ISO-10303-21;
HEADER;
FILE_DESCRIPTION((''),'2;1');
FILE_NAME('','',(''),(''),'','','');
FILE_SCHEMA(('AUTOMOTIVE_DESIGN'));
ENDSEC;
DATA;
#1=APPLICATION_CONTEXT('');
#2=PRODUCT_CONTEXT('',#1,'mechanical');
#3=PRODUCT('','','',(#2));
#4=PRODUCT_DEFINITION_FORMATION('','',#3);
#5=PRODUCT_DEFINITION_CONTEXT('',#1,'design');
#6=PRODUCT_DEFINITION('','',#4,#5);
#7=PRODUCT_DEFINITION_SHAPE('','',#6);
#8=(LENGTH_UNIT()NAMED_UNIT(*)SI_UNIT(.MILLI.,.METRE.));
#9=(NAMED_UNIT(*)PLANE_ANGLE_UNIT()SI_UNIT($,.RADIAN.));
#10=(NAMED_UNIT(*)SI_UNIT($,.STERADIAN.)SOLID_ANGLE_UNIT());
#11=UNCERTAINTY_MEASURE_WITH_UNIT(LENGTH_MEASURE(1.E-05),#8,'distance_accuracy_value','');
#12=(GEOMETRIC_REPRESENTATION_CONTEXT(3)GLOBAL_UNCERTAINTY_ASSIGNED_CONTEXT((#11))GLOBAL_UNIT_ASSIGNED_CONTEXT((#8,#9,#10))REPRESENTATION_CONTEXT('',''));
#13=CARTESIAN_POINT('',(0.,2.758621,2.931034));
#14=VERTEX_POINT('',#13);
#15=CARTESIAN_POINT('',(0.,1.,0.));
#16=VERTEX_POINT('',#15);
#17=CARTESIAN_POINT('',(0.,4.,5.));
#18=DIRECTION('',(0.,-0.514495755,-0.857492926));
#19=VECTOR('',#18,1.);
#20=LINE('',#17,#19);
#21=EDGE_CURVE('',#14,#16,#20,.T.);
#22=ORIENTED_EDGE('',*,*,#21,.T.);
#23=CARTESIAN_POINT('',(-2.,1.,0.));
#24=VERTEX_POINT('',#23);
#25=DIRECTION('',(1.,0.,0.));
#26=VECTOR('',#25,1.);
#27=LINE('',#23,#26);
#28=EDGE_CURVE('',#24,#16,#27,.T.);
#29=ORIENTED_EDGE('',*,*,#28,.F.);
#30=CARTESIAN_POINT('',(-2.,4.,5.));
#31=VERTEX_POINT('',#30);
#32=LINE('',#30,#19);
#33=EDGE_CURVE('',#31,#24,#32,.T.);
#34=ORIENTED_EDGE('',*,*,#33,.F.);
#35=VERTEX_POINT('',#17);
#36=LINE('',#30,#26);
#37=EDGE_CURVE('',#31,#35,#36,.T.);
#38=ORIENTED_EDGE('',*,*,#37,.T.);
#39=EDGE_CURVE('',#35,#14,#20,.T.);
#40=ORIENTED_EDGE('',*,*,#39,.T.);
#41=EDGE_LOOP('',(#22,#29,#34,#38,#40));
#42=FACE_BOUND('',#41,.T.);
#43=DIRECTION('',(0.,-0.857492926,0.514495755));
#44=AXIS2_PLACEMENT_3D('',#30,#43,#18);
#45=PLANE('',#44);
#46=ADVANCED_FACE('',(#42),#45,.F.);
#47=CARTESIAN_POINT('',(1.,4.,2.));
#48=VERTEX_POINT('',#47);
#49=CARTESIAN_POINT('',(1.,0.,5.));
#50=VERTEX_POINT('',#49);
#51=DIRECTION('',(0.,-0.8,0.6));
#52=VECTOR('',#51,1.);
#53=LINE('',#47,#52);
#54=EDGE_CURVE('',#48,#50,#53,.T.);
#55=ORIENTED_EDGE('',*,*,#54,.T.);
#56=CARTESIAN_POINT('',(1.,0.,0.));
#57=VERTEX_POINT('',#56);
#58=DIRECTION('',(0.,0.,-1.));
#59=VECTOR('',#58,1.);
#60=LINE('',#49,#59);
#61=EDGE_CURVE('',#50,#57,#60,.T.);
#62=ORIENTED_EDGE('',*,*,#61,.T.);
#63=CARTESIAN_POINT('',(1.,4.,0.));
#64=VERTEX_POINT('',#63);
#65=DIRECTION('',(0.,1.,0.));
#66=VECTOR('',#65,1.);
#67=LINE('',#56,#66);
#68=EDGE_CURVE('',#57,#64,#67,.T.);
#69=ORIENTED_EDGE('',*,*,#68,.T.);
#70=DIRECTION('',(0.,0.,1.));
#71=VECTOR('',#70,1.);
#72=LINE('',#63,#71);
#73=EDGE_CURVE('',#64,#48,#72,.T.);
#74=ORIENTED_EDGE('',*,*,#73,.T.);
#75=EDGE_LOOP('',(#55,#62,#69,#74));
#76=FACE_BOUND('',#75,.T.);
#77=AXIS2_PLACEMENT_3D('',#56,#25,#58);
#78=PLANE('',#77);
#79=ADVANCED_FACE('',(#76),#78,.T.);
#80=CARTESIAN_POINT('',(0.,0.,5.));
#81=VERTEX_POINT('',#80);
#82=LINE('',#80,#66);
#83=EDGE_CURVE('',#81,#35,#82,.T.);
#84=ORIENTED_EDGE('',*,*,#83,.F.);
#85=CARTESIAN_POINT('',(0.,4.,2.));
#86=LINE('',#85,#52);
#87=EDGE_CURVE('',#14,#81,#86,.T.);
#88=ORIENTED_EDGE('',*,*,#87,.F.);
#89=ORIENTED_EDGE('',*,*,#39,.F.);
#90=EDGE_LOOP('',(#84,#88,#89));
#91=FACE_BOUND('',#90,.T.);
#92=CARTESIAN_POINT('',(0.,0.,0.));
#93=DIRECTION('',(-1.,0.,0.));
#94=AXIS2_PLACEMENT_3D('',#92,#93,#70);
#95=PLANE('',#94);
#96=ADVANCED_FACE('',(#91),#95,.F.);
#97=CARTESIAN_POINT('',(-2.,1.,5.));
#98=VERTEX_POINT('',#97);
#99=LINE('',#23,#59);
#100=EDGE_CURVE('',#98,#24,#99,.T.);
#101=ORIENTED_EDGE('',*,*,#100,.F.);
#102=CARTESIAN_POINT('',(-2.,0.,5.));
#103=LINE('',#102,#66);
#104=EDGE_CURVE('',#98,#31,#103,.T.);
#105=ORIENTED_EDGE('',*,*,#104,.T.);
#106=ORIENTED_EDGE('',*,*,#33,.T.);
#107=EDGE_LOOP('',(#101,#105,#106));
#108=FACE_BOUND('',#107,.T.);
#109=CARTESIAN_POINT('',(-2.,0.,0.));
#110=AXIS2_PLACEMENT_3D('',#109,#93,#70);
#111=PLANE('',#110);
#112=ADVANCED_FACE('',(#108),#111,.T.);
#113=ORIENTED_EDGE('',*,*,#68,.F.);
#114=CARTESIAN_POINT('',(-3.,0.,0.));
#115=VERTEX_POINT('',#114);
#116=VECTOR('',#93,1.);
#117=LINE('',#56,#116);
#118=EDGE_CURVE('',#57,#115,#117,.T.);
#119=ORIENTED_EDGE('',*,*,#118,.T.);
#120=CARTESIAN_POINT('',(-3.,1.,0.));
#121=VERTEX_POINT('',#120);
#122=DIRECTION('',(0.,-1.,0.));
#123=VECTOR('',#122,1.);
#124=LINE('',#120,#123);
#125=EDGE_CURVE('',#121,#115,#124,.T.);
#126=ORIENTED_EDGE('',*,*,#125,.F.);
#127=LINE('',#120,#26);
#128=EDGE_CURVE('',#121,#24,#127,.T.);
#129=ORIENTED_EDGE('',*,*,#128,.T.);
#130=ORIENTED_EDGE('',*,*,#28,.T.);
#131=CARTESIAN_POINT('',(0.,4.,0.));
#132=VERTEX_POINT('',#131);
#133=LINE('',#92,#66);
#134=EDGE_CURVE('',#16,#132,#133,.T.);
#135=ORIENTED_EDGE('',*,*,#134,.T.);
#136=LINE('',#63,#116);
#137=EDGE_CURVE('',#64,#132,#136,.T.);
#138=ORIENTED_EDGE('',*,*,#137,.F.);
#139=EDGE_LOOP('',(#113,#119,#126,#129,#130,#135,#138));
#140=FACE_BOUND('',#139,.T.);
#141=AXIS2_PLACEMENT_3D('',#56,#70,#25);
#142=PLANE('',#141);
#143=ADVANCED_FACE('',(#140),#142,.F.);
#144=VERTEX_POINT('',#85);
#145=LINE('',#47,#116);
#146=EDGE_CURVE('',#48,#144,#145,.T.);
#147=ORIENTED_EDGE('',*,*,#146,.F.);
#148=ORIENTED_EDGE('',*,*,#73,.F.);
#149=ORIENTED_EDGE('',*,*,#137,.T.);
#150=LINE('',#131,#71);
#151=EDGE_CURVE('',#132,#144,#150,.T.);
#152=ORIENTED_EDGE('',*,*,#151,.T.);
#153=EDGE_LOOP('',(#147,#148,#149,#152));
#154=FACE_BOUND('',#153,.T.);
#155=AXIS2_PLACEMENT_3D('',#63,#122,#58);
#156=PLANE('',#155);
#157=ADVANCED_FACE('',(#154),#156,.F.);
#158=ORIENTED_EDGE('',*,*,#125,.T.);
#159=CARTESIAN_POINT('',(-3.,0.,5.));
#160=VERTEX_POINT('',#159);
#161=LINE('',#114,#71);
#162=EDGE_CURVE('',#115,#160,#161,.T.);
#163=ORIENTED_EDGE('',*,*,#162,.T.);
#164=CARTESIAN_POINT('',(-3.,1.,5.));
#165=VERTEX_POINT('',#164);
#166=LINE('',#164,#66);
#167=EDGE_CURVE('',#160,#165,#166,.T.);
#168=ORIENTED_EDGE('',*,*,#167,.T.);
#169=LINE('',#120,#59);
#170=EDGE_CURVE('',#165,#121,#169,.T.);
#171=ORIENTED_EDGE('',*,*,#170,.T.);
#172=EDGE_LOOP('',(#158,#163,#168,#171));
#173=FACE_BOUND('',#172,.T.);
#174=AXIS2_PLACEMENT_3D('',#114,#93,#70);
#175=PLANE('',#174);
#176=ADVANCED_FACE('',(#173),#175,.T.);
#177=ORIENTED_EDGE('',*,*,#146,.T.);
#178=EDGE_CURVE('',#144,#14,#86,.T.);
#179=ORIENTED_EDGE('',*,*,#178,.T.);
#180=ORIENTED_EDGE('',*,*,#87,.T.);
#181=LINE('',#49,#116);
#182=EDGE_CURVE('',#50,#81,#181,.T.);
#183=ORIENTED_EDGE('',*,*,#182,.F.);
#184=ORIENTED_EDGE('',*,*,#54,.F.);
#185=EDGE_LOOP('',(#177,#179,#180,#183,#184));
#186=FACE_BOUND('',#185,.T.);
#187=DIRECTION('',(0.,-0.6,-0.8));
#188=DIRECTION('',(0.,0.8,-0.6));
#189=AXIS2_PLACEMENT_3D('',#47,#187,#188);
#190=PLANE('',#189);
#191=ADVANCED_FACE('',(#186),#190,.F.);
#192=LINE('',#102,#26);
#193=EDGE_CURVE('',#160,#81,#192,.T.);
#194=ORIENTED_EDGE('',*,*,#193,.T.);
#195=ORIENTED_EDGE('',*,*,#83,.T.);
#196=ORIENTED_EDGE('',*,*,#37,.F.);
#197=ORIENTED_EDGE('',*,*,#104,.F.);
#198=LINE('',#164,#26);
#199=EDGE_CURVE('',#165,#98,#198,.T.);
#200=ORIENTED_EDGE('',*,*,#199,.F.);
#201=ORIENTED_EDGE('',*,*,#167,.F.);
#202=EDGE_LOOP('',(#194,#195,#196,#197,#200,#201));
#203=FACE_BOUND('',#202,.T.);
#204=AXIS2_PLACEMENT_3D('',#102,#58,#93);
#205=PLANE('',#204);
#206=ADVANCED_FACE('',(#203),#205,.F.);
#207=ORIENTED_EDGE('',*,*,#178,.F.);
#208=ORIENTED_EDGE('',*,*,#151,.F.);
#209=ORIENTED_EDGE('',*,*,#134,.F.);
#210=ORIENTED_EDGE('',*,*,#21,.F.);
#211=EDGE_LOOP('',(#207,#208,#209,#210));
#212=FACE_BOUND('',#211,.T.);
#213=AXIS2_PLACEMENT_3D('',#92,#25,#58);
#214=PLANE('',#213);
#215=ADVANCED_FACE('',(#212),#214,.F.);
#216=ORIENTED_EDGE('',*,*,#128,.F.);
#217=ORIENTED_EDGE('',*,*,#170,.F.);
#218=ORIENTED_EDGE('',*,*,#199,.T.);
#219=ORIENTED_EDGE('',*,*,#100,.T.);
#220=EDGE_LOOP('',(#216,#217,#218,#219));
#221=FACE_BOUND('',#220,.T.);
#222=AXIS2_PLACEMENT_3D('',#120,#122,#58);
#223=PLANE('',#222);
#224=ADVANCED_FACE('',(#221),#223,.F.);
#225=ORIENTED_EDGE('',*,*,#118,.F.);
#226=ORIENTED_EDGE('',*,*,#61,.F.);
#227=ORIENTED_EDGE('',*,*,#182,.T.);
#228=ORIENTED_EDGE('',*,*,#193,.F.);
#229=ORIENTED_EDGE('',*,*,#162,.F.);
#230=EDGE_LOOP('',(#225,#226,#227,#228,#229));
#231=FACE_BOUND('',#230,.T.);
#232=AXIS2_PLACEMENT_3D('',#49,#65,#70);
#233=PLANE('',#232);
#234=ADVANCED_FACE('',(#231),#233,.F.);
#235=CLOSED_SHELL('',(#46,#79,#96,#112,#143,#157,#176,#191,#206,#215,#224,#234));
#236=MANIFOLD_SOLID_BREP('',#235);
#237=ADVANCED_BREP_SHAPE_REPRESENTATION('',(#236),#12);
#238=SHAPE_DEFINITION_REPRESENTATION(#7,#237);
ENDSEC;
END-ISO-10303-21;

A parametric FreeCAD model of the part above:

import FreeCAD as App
import Part
import Sketcher
Q = App.Units.Quantity

doc = App.newDocument("Part")
params = doc.addObject("Spreadsheet::Sheet", "Params")
for row, (alias, value) in enumerate([
    ("sketch1_width", "4 mm"),
    ("sketch1_height", "2 mm"),
    ("sketch1_height2", "5 mm"),
    ("pad1_length", "1 mm"),
    ("sketch2_width", "4 mm"),
    ("sketch2_width2", "1 mm"),
    ("sketch2_height", "5 mm"),
    ("pad2_length", "2 mm"),
    ("sketch3_width", "1 mm"),
    ("sketch3_height", "5 mm"),
    ("pad3_length", "1 mm"),
], start=1):
    params.set(f"A{row}", alias)
    params.set(f"B{row}", "=" + value)
    params.setAlias(f"B{row}", alias)

body = doc.addObject("PartDesign::Body", "Body")

# Sketch on YZ plane
sketch1 = body.newObject("Sketcher::SketchObject", "Sketch")
sketch1.AttachmentSupport = (doc.getObject("YZ_Plane"), [""])
sketch1.MapMode = "FlatFace"
sketch1.addGeometry(Part.LineSegment(App.Vector(0, 0, 0), App.Vector(4, 0, 0)), False)
sketch1.addGeometry(Part.LineSegment(App.Vector(4, 0, 0), App.Vector(4, 2, 0)), False)
sketch1.addGeometry(Part.LineSegment(App.Vector(4, 2, 0), App.Vector(0, 5, 0)), False)
sketch1.addGeometry(Part.LineSegment(App.Vector(0, 5, 0), App.Vector(0, 0, 0)), False)
sketch1.addConstraint(Sketcher.Constraint("Coincident", 0, 2, 1, 1))
sketch1.addConstraint(Sketcher.Constraint("Coincident", 1, 2, 2, 1))
sketch1.addConstraint(Sketcher.Constraint("Coincident", 2, 2, 3, 1))
sketch1.addConstraint(Sketcher.Constraint("Coincident", 3, 2, 0, 1))
sketch1.addConstraint(Sketcher.Constraint("Horizontal", 0))
sketch1.addConstraint(Sketcher.Constraint("Vertical", 1))
sketch1.addConstraint(Sketcher.Constraint("Vertical", 3))
sketch1.addConstraint(Sketcher.Constraint("Coincident", 3, 2, -1, 1))
sketch1.addConstraint(Sketcher.Constraint("DistanceX", 0, 1, 0, 2, Q("4 mm")))
sketch1.addConstraint(Sketcher.Constraint("DistanceY", 1, 1, 1, 2, Q("2 mm")))
sketch1.addConstraint(Sketcher.Constraint("DistanceY", 3, 2, 3, 1, Q("5 mm")))
sketch1.setExpression("Constraints[8]", "Params.sketch1_width")
sketch1.setExpression("Constraints[9]", "Params.sketch1_height")
sketch1.setExpression("Constraints[10]", "Params.sketch1_height2")
pad1 = body.newObject("PartDesign::Pad", "Pad")
pad1.Profile = sketch1
pad1.setExpression("Length", "Params.pad1_length")

# Sketch on YZ plane
sketch2 = body.newObject("Sketcher::SketchObject", "Sketch001")
sketch2.AttachmentSupport = (doc.getObject("YZ_Plane"), [""])
sketch2.MapMode = "FlatFace"
sketch2.addGeometry(Part.LineSegment(App.Vector(0, 0, 0), App.Vector(0, 5, 0)), False)
sketch2.addGeometry(Part.LineSegment(App.Vector(0, 5, 0), App.Vector(4, 5, 0)), False)
sketch2.addGeometry(Part.LineSegment(App.Vector(4, 5, 0), App.Vector(1, 0, 0)), False)
sketch2.addGeometry(Part.LineSegment(App.Vector(1, 0, 0), App.Vector(0, 0, 0)), False)
sketch2.addConstraint(Sketcher.Constraint("Coincident", 0, 2, 1, 1))
sketch2.addConstraint(Sketcher.Constraint("Coincident", 1, 2, 2, 1))
sketch2.addConstraint(Sketcher.Constraint("Coincident", 2, 2, 3, 1))
sketch2.addConstraint(Sketcher.Constraint("Coincident", 3, 2, 0, 1))
sketch2.addConstraint(Sketcher.Constraint("Vertical", 0))
sketch2.addConstraint(Sketcher.Constraint("Horizontal", 1))
sketch2.addConstraint(Sketcher.Constraint("Horizontal", 3))
sketch2.addConstraint(Sketcher.Constraint("Coincident", 3, 2, -1, 1))
sketch2.addConstraint(Sketcher.Constraint("DistanceX", 1, 1, 1, 2, Q("4 mm")))
sketch2.addConstraint(Sketcher.Constraint("DistanceX", 3, 2, 3, 1, Q("1 mm")))
sketch2.addConstraint(Sketcher.Constraint("DistanceY", 0, 1, 0, 2, Q("5 mm")))
sketch2.setExpression("Constraints[8]", "Params.sketch2_width")
sketch2.setExpression("Constraints[9]", "Params.sketch2_width2")
sketch2.setExpression("Constraints[10]", "Params.sketch2_height")
pad2 = body.newObject("PartDesign::Pad", "Pad001")
pad2.Profile = sketch2
pad2.setExpression("Length", "Params.pad2_length")
pad2.Reversed = True

# Sketch on YZ plane
sketch3 = body.newObject("Sketcher::SketchObject", "Sketch002")
sketch3.AttachmentSupport = (doc.getObject("YZ_Plane"), [""])
sketch3.MapMode = "FlatFace"
sketch3.AttachmentOffset = App.Placement(App.Vector(0, 0, -2), App.Rotation())
sketch3.addGeometry(Part.LineSegment(App.Vector(1, 0, 0), App.Vector(0, 0, 0)), False)
sketch3.addGeometry(Part.LineSegment(App.Vector(0, 0, 0), App.Vector(0, 5, 0)), False)
sketch3.addGeometry(Part.LineSegment(App.Vector(0, 5, 0), App.Vector(1, 5, 0)), False)
sketch3.addGeometry(Part.LineSegment(App.Vector(1, 5, 0), App.Vector(1, 0, 0)), False)
sketch3.addConstraint(Sketcher.Constraint("Coincident", 0, 2, 1, 1))
sketch3.addConstraint(Sketcher.Constraint("Coincident", 1, 2, 2, 1))
sketch3.addConstraint(Sketcher.Constraint("Coincident", 2, 2, 3, 1))
sketch3.addConstraint(Sketcher.Constraint("Coincident", 3, 2, 0, 1))
sketch3.addConstraint(Sketcher.Constraint("Horizontal", 0))
sketch3.addConstraint(Sketcher.Constraint("Vertical", 1))
sketch3.addConstraint(Sketcher.Constraint("Horizontal", 2))
sketch3.addConstraint(Sketcher.Constraint("Vertical", 3))
sketch3.addConstraint(Sketcher.Constraint("Coincident", 0, 2, -1, 1))
sketch3.addConstraint(Sketcher.Constraint("DistanceX", 0, 2, 0, 1, Q("1 mm")))
sketch3.addConstraint(Sketcher.Constraint("DistanceY", 1, 1, 1, 2, Q("5 mm")))
sketch3.setExpression("Constraints[9]", "Params.sketch3_width")
sketch3.setExpression("Constraints[10]", "Params.sketch3_height")
pad3 = body.newObject("PartDesign::Pad", "Pad002")
pad3.Profile = sketch3
pad3.setExpression("Length", "Params.pad3_length")
pad3.Reversed = True

doc.recompute()
